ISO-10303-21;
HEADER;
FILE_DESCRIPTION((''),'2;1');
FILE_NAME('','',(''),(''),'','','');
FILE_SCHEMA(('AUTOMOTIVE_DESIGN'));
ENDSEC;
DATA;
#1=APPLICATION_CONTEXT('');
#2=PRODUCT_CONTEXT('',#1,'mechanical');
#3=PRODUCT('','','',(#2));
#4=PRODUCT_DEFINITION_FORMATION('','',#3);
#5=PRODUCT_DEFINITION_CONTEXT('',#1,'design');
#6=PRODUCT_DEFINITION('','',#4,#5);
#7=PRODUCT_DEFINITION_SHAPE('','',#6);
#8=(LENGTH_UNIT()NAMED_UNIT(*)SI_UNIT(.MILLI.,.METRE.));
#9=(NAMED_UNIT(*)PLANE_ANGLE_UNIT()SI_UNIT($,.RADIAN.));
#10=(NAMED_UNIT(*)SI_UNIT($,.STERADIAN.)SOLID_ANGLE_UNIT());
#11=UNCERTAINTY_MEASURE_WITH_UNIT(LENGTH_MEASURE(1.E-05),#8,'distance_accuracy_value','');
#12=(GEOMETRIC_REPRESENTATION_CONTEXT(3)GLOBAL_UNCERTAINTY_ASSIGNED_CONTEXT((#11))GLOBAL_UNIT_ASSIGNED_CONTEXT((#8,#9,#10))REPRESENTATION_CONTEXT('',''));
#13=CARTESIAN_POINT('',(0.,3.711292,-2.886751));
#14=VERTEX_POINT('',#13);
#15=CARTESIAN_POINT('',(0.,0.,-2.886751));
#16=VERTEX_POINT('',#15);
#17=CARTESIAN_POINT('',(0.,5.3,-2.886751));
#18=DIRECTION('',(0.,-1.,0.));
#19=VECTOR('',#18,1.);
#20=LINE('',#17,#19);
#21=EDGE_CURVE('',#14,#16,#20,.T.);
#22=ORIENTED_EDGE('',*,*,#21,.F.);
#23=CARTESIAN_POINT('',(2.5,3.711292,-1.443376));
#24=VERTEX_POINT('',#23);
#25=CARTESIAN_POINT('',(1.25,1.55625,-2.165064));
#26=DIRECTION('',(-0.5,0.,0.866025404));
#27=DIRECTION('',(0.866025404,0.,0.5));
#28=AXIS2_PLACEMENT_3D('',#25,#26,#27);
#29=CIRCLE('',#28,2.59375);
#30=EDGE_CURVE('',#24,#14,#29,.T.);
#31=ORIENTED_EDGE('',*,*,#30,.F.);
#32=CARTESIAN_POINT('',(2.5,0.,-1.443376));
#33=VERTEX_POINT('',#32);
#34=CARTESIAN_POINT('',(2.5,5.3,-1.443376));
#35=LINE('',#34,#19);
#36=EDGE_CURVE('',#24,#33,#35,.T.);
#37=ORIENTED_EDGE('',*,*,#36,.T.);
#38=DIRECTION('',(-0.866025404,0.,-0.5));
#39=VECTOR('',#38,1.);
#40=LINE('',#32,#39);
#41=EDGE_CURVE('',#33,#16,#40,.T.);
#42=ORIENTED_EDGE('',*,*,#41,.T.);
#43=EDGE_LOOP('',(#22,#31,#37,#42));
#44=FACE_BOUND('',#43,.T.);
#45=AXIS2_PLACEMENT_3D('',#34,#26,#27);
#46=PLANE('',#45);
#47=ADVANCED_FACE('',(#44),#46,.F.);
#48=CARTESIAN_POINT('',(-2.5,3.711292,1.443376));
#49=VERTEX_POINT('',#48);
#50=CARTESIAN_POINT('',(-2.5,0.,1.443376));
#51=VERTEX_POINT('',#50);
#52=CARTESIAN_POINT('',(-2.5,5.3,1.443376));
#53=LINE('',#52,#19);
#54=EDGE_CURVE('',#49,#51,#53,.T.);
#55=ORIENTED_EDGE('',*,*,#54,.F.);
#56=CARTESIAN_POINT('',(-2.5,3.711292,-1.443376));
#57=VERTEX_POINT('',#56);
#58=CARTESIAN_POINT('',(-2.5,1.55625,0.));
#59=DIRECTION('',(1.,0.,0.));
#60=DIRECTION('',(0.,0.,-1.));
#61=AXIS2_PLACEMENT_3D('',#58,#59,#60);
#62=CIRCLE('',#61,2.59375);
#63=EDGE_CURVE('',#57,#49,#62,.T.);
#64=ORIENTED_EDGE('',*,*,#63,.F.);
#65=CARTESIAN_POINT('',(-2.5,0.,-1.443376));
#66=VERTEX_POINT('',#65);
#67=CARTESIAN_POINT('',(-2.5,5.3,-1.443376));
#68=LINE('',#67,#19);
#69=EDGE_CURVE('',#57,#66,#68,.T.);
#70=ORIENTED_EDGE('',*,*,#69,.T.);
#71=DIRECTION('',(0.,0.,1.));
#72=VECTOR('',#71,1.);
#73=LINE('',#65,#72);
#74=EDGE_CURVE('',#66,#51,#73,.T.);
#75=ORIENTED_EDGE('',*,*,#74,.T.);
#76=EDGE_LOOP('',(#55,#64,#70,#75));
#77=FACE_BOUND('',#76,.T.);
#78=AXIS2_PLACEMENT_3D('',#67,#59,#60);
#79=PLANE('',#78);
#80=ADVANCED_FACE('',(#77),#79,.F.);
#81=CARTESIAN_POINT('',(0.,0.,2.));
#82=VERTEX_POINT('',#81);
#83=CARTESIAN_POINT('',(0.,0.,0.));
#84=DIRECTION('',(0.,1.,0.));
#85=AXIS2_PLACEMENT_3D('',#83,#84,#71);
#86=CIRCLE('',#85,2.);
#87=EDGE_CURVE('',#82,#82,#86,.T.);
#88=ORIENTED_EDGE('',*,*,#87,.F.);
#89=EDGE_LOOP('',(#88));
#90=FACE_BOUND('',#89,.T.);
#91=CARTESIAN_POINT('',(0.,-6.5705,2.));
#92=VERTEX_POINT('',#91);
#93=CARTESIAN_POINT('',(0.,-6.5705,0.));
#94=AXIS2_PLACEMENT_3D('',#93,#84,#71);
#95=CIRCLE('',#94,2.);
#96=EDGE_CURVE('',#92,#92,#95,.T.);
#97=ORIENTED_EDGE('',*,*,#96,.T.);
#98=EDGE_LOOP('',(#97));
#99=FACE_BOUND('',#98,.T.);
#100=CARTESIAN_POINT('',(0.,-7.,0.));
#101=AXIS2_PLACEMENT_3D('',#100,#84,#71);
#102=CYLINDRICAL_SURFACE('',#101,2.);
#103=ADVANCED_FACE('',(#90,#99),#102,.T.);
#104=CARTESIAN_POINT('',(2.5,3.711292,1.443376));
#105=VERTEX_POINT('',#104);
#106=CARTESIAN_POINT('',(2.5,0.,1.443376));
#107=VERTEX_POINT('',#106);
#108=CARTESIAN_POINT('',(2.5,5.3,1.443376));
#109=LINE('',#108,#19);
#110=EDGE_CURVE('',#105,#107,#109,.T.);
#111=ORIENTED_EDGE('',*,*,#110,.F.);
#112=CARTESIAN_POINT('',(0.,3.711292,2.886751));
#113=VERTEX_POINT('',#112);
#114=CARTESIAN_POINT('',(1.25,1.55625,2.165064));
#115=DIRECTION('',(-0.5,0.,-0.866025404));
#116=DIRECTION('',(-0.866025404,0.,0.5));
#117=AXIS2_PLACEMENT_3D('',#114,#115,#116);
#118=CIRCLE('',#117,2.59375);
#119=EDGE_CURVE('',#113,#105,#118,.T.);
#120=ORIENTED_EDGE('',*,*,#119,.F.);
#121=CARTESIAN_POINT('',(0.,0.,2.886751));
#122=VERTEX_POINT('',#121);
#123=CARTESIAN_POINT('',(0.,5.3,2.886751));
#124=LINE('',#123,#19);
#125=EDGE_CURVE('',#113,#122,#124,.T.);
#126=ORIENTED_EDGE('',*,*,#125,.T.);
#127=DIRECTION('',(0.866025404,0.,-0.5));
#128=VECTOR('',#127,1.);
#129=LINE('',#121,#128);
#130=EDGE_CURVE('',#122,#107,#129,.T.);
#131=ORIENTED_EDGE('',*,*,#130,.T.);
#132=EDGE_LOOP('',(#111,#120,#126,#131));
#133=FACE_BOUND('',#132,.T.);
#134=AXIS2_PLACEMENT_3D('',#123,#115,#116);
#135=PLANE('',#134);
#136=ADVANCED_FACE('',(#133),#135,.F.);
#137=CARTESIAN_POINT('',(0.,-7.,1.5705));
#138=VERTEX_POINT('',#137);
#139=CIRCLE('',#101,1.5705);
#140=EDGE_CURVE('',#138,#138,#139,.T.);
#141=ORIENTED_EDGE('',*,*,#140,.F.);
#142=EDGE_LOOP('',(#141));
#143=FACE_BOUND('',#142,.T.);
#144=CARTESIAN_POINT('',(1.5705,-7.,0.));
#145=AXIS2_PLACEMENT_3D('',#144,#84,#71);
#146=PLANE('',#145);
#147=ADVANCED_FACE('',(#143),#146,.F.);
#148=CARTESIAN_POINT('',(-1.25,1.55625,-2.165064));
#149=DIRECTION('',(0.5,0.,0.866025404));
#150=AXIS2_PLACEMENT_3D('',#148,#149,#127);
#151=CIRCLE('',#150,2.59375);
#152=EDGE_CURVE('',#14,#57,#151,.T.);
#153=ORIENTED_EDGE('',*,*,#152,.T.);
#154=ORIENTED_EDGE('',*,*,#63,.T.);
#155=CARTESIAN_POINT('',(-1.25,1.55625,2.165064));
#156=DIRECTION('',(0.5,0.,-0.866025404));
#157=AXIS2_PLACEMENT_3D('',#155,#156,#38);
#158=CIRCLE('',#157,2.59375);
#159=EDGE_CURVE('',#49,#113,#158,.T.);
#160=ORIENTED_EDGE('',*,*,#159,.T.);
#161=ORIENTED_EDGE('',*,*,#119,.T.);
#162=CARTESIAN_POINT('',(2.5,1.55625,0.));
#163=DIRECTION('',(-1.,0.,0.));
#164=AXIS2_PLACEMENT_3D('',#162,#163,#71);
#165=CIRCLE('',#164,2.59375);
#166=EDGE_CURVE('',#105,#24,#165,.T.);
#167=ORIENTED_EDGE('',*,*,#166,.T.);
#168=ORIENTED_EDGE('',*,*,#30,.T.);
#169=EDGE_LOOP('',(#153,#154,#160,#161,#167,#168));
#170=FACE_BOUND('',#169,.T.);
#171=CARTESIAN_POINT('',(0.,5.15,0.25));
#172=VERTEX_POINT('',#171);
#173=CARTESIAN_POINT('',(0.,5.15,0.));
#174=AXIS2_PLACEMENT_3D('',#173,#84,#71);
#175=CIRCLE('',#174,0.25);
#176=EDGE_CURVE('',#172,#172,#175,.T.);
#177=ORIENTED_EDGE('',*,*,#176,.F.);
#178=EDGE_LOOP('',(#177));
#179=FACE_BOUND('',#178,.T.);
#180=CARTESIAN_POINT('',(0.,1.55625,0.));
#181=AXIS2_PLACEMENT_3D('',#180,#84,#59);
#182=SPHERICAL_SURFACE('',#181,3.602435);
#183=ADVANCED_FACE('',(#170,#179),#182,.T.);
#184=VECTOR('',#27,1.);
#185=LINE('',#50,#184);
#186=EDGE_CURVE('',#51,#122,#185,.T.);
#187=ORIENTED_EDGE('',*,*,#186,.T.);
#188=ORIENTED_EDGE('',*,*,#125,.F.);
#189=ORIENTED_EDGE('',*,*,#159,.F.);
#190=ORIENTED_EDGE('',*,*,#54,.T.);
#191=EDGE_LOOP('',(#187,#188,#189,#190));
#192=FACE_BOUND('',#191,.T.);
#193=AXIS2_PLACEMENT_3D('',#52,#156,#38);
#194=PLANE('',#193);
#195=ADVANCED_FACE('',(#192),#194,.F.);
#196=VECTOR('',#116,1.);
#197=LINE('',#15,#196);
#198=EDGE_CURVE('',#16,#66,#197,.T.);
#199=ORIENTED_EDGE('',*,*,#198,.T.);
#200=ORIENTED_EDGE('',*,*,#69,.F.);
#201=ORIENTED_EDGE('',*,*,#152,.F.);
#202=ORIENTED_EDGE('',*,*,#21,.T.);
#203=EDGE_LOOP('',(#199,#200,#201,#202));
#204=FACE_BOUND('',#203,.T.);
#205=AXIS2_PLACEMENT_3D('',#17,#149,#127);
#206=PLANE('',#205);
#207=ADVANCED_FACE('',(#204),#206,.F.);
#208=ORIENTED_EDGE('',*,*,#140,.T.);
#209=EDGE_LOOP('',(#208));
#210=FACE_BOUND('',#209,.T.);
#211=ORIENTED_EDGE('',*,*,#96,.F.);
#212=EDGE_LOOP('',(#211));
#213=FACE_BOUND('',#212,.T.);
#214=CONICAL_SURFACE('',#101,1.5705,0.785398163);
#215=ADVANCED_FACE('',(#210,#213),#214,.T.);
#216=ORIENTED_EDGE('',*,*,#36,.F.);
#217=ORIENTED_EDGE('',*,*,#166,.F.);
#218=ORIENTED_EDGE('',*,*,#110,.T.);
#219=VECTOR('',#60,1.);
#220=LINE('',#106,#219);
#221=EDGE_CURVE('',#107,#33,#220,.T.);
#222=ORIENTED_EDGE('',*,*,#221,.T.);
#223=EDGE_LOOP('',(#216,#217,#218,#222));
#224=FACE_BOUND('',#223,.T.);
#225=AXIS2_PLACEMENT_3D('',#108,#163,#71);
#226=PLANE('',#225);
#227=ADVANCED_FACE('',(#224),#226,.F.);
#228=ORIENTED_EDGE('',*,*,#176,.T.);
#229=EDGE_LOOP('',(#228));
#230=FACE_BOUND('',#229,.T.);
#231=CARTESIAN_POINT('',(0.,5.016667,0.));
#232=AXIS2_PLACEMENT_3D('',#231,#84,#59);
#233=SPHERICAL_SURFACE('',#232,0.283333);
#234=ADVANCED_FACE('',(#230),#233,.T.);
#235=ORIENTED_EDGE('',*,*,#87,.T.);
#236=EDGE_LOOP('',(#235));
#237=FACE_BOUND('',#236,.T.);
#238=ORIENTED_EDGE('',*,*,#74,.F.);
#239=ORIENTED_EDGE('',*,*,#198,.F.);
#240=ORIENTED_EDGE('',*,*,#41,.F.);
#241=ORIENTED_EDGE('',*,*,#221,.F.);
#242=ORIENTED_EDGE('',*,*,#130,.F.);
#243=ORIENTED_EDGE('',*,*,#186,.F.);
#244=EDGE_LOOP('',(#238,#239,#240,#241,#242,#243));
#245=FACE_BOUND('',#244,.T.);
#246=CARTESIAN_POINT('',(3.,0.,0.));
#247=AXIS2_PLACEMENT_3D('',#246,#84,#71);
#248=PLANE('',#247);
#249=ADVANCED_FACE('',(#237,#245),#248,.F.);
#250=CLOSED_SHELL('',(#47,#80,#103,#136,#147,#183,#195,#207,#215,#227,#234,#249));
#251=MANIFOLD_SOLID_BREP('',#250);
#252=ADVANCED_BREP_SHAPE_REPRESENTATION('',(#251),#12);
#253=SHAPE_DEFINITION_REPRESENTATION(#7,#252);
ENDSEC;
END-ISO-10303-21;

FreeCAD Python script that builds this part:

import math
import FreeCAD as App
import Part
import Sketcher
Q = App.Units.Quantity

doc = App.newDocument("Part")
body = doc.addObject("PartDesign::Body", "Body")

sketch1 = body.newObject("Sketcher::SketchObject", "Sketch")
sketch1.AttachmentSupport = (doc.getObject("XY_Plane"), [""])
sketch1.MapMode = "FlatFace"
sketch1.addGeometry([
    Part.LineSegment(App.Vector(3, 0, 0), App.Vector(3, 3.550627, 0)),
    Part.ArcOfCircle(Part.Circle(App.Vector(0, 1.55625, 0), App.Vector(0, 0, 1), 3.602435), math.radians(33.615653), math.radians(86.020618)),
    Part.ArcOfCircle(Part.Circle(App.Vector(0, 5.016667, 0), App.Vector(0, 0, 1), 0.283333), math.radians(28.072487), math.radians(90)),
    Part.LineSegment(App.Vector(0, 5.3, 0), App.Vector(0, -7, 0)),
    Part.LineSegment(App.Vector(0, -7, 0), App.Vector(1.5705, -7, 0)),
    Part.LineSegment(App.Vector(1.5705, -7, 0), App.Vector(2, -6.5705, 0)),
    Part.LineSegment(App.Vector(2, -6.5705, 0), App.Vector(2, 0, 0)),
    Part.LineSegment(App.Vector(2, 0, 0), App.Vector(3, 0, 0)),
], False)
sketch1.addConstraint([
    Sketcher.Constraint("Coincident", 0, 2, 1, 1),
    Sketcher.Constraint("Coincident", 1, 2, 2, 1),
    Sketcher.Constraint("Coincident", 2, 2, 3, 1),
    Sketcher.Constraint("Coincident", 3, 2, 4, 1),
    Sketcher.Constraint("Coincident", 4, 2, 5, 1),
    Sketcher.Constraint("Coincident", 5, 2, 6, 1),
    Sketcher.Constraint("Coincident", 6, 2, 7, 1),
    Sketcher.Constraint("Coincident", 7, 2, 0, 1),
    Sketcher.Constraint("Vertical", 0),
    Sketcher.Constraint("Vertical", 3),
    Sketcher.Constraint("Horizontal", 4),
    Sketcher.Constraint("Vertical", 6),
    Sketcher.Constraint("Horizontal", 7),
    Sketcher.Constraint("PointOnObject", 1, 3, -2),
    Sketcher.Constraint("PointOnObject", 2, 3, -2),
    Sketcher.Constraint("PointOnObject", 2, 2, -2),
    Sketcher.Constraint("PointOnObject", 6, 2, -1),
    Sketcher.Constraint("DistanceX", 7, 1, 7, 2, Q("1 mm")),
    Sketcher.Constraint("Angle", 5, Q("45 deg")),
    Sketcher.Constraint("DistanceY", 3, 2, 3, 1, Q("12.3 mm")),
    Sketcher.Constraint("DistanceX", -1, 1, 0, 2, Q("3 mm")),
    Sketcher.Constraint("DistanceY", 3, 2, -1, 1, Q("7 mm")),
    Sketcher.Constraint("DistanceX", -1, 1, 1, 2, Q("0.25 mm")),
    Sketcher.Constraint("DistanceY", -1, 1, 1, 2, Q("5.15 mm")),
    Sketcher.Constraint("DistanceX", 4, 1, 4, 2, Q("1.5705 mm")),
    Sketcher.Constraint("Radius", 1, Q("3.602435 mm")),
])
revolution = body.newObject("PartDesign::Revolution", "Revolution")
revolution.Profile = sketch1
revolution.ReferenceAxis = (sketch1, ["V_Axis"])
revolution.Angle = 360

sketch2 = body.newObject("Sketcher::SketchObject", "Sketch001")
sketch2.AttachmentSupport = (doc.getObject("XZ_Plane"), [""])
sketch2.MapMode = "FlatFace"
sketch2.addGeometry([
    Part.Circle(App.Vector(0, 0, 0), App.Vector(0, 0, 1), 5),
    Part.LineSegment(App.Vector(-2.5, 1.443376, 0), App.Vector(-2.5, -1.443376, 0)),
    Part.LineSegment(App.Vector(-2.5, -1.443376, 0), App.Vector(0, -2.886751, 0)),
    Part.LineSegment(App.Vector(0, -2.886751, 0), App.Vector(2.5, -1.443376, 0)),
    Part.LineSegment(App.Vector(2.5, -1.443376, 0), App.Vector(2.5, 1.443376, 0)),
    Part.LineSegment(App.Vector(2.5, 1.443376, 0), App.Vector(0, 2.886751, 0)),
    Part.LineSegment(App.Vector(0, 2.886751, 0), App.Vector(-2.5, 1.443376, 0)),
], False)
sketch2.addConstraint([
    Sketcher.Constraint("Coincident", 1, 2, 2, 1),
    Sketcher.Constraint("Coincident", 2, 2, 3, 1),
    Sketcher.Constraint("Coincident", 3, 2, 4, 1),
    Sketcher.Constraint("Coincident", 4, 2, 5, 1),
    Sketcher.Constraint("Coincident", 5, 2, 6, 1),
    Sketcher.Constraint("Coincident", 6, 2, 1, 1),
    Sketcher.Constraint("Vertical", 1),
    Sketcher.Constraint("Vertical", 4),
    Sketcher.Constraint("Coincident", 0, 3, -1, 1),
    Sketcher.Constraint("Symmetric", 1, 2, 4, 2, -1, 1),
    Sketcher.Constraint("Symmetric", 2, 2, 5, 2, -1, 1),
    Sketcher.Constraint("PointOnObject", 2, 2, -2),
    Sketcher.Constraint("Parallel", 3, 6),
    Sketcher.Constraint("Horizontal", 1, 2, 3, 2),
    Sketcher.Constraint("Diameter", 0, Q("10 mm")),
    Sketcher.Constraint("Angle", 2, Q("-30 deg")),
    Sketcher.Constraint("DistanceX", 1, 2, 3, 2, Q("5 mm")),
    Sketcher.Constraint("DistanceY", 1, 2, 1, 1, Q("2.886751 mm")),
])
pocket1 = body.newObject("PartDesign::Pocket", "Pocket")
pocket1.Profile = sketch2
pocket1.Length = 5.3

doc.recompute()
